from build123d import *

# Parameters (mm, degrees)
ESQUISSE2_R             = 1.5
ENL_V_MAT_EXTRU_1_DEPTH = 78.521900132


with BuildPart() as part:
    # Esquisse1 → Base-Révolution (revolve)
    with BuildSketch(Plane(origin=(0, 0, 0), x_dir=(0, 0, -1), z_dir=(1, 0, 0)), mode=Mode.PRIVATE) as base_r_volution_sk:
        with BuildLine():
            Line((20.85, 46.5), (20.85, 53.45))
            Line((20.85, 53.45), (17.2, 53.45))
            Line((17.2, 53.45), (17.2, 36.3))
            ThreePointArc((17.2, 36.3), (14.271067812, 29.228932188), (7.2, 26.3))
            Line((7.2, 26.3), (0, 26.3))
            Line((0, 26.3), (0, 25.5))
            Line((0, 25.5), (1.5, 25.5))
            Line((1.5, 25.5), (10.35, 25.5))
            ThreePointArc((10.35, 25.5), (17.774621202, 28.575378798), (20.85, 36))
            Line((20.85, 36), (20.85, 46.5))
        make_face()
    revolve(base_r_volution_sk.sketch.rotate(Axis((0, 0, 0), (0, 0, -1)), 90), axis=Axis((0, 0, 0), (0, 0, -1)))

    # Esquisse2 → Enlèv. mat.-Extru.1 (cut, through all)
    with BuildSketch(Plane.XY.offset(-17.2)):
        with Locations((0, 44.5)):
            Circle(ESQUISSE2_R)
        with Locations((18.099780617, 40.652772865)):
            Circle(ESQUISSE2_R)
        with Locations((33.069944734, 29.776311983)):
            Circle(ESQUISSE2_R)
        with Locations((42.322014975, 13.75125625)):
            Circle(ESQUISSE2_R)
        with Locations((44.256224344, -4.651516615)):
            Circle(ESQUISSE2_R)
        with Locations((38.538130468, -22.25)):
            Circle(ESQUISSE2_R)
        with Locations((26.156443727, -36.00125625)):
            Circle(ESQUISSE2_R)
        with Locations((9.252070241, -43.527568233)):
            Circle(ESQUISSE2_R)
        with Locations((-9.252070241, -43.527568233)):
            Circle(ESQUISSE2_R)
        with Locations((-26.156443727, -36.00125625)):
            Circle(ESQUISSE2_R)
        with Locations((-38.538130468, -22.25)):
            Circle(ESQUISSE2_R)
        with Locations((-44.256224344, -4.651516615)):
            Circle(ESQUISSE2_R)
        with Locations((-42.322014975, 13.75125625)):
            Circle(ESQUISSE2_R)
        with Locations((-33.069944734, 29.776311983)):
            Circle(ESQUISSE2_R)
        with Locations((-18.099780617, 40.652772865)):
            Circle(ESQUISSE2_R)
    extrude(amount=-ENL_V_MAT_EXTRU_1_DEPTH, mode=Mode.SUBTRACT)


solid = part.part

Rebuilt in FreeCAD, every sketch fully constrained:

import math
import FreeCAD as App
import Part
import Sketcher
from FreeCAD import Vector

doc = App.newDocument("Part")
body = doc.addObject("PartDesign::Body", "Body")

# Sketch on YZ plane
sketch1 = body.newObject("Sketcher::SketchObject", "Sketch")
sketch1.AttachmentSupport = (doc.getObject("YZ_Plane"), [""])
sketch1.MapMode = "FlatFace"
sketch1.addGeometry([
    Part.LineSegment(Vector(53.45, -20.85, 0), Vector(53.45, -17.2, 0)),  # 0
    Part.LineSegment(Vector(53.45, -17.2, 0), Vector(36.3, -17.2, 0)),  # 1
    Part.ArcOfCircle(Part.Circle(Vector(36.3, -7.2, 0), Vector(0, 0, 1), 10), math.radians(180), math.radians(270)),  # 2
    Part.LineSegment(Vector(26.3, -7.2, 0), Vector(26.3, 0, 0)),  # 3
    Part.LineSegment(Vector(26.3, 0, 0), Vector(25.5, 0, 0)),  # 4
    Part.LineSegment(Vector(25.5, 0, 0), Vector(25.5, -10.35, 0)),  # 5
    Part.ArcOfCircle(Part.Circle(Vector(36, -10.35, 0), Vector(0, 0, 1), 10.5), math.radians(-180), math.radians(-90)),  # 6
    Part.LineSegment(Vector(36, -20.85, 0), Vector(53.45, -20.85, 0)),  # 7
], False)
sketch1.addConstraint([
    Sketcher.Constraint("Coincident", 0, 2, 1, 1),
    Sketcher.Constraint("Tangent", 1, 2, 2, 2),
    Sketcher.Constraint("Tangent", 2, 1, 3, 1),
    Sketcher.Constraint("Coincident", 3, 2, 4, 1),
    Sketcher.Constraint("Coincident", 4, 2, 5, 1),
    Sketcher.Constraint("Tangent", 5, 2, 6, 1),
    Sketcher.Constraint("Tangent", 6, 2, 7, 1),
    Sketcher.Constraint("Coincident", 7, 2, 0, 1),
    Sketcher.Constraint("Vertical", 0),
    Sketcher.Constraint("Horizontal", 1),
    Sketcher.Constraint("Vertical", 3),
    Sketcher.Constraint("Horizontal", 4),
    Sketcher.Constraint("Vertical", 5),
    Sketcher.Constraint("Horizontal", 7),
    Sketcher.Constraint("PointOnObject", 3, 2, -1),
    Sketcher.Constraint("Radius", 2, 10.0),
    Sketcher.Constraint("Radius", 6, 10.5),
    Sketcher.Constraint("DistanceX", 4, 2, 4, 1, 0.8),
    Sketcher.Constraint("DistanceY", 3, 1, 3, 2, 7.2),
    Sketcher.Constraint("DistanceX", -1, 1, 6, 3, 36.0),
    Sketcher.Constraint("DistanceX", 1, 2, 1, 1, 17.15),
    Sketcher.Constraint("DistanceY", 0, 1, 0, 2, 3.65),
])
revolution = body.newObject("PartDesign::Revolution", "Revolution")
revolution.Profile = sketch1
revolution.ReferenceAxis = (sketch1, ["V_Axis"])
revolution.Angle = 360

# Sketch on XY plane
sketch2 = body.newObject("Sketcher::SketchObject", "Sketch001")
sketch2.AttachmentSupport = (doc.getObject("XY_Plane"), [""])
sketch2.MapMode = "FlatFace"
sketch2.AttachmentOffset = App.Placement(Vector(0, 0, -17.2), App.Rotation())
sketch2.addGeometry([
    Part.Circle(Vector(0, 44.5, 0), Vector(0, 0, 1), 1.5),  # 0
    Part.Circle(Vector(18.099781, 40.652773, 0), Vector(0, 0, 1), 1.5),  # 1
    Part.Circle(Vector(33.069945, 29.776312, 0), Vector(0, 0, 1), 1.5),  # 2
    Part.Circle(Vector(42.322015, 13.751256, 0), Vector(0, 0, 1), 1.5),  # 3
    Part.Circle(Vector(44.256224, -4.651517, 0), Vector(0, 0, 1), 1.5),  # 4
    Part.Circle(Vector(38.53813, -22.25, 0), Vector(0, 0, 1), 1.5),  # 5
    Part.Circle(Vector(26.156444, -36.001256, 0), Vector(0, 0, 1), 1.5),  # 6
    Part.Circle(Vector(9.25207, -43.527568, 0), Vector(0, 0, 1), 1.5),  # 7
    Part.Circle(Vector(-9.25207, -43.527568, 0), Vector(0, 0, 1), 1.5),  # 8
    Part.Circle(Vector(-26.156444, -36.001256, 0), Vector(0, 0, 1), 1.5),  # 9
    Part.Circle(Vector(-38.53813, -22.25, 0), Vector(0, 0, 1), 1.5),  # 10
    Part.Circle(Vector(-44.256224, -4.651517, 0), Vector(0, 0, 1), 1.5),  # 11
    Part.Circle(Vector(-42.322015, 13.751256, 0), Vector(0, 0, 1), 1.5),  # 12
    Part.Circle(Vector(-33.069945, 29.776312, 0), Vector(0, 0, 1), 1.5),  # 13
    Part.Circle(Vector(-18.099781, 40.652773, 0), Vector(0, 0, 1), 1.5),  # 14
], False)
sketch2.addConstraint([
    Sketcher.Constraint("Equal", 0, 1),
    Sketcher.Constraint("Equal", 1, 2),
    Sketcher.Constraint("Equal", 2, 3),
    Sketcher.Constraint("Equal", 3, 4),
    Sketcher.Constraint("Equal", 4, 5),
    Sketcher.Constraint("Equal", 5, 6),
    Sketcher.Constraint("Equal", 6, 7),
    Sketcher.Constraint("Equal", 7, 8),
    Sketcher.Constraint("Equal", 8, 9),
    Sketcher.Constraint("Equal", 9, 10),
    Sketcher.Constraint("Equal", 10, 11),
    Sketcher.Constraint("Equal", 11, 12),
    Sketcher.Constraint("Equal", 12, 13),
    Sketcher.Constraint("Equal", 13, 14),
    Sketcher.Constraint("Symmetric", 7, 3, 8, 3, -2),
    Sketcher.Constraint("Symmetric", 6, 3, 9, 3, -2),
    Sketcher.Constraint("Symmetric", 5, 3, 10, 3, -2),
    Sketcher.Constraint("Symmetric", 4, 3, 11, 3, -2),
    Sketcher.Constraint("Symmetric", 3, 3, 12, 3, -2),
    Sketcher.Constraint("Symmetric", 2, 3, 13, 3, -2),
    Sketcher.Constraint("Symmetric", 1, 3, 14, 3, -2),
    Sketcher.Constraint("PointOnObject", 0, 3, -2),
    Sketcher.Constraint("Diameter", 0, 3.0),
    Sketcher.Constraint("DistanceY", -1, 1, 0, 3, 44.5),
    Sketcher.Constraint("DistanceY", 5, 3, -1, 1, 22.25),
    Sketcher.Constraint("DistanceX", 6, 3, 2, 3, 6.913501),
    Sketcher.Constraint("DistanceX", 8, 3, 5, 3, 47.790201),
    Sketcher.Constraint("DistanceX", -1, 1, 1, 3, 18.099781),
    Sketcher.Constraint("DistanceY", -1, 1, 2, 3, 29.776312),
    Sketcher.Constraint("DistanceX", -1, 1, 5, 3, 38.53813),
    Sketcher.Constraint("DistanceY", 7, 3, -1, 1, 43.527568),
    Sketcher.Constraint("DistanceY", 2, 3, 1, 3, 10.876461),
    Sketcher.Constraint("DistanceX", 2, 3, 3, 3, 9.25207),
    Sketcher.Constraint("DistanceX", 3, 3, 4, 3, 1.934209),
    Sketcher.Constraint("DistanceY", 4, 3, 2, 3, 34.427829),
    Sketcher.Constraint("DistanceY", 6, 3, 4, 3, 31.34974),
    Sketcher.Constraint("DistanceX", 9, 3, 4, 3, 70.412668),
    Sketcher.Constraint("DistanceY", -1, 1, 3, 3, 13.751256),
])
pocket1 = body.newObject("PartDesign::Pocket", "Pocket")
pocket1.Profile = sketch2
pocket1.Type = "ThroughAll"

doc.recompute()
